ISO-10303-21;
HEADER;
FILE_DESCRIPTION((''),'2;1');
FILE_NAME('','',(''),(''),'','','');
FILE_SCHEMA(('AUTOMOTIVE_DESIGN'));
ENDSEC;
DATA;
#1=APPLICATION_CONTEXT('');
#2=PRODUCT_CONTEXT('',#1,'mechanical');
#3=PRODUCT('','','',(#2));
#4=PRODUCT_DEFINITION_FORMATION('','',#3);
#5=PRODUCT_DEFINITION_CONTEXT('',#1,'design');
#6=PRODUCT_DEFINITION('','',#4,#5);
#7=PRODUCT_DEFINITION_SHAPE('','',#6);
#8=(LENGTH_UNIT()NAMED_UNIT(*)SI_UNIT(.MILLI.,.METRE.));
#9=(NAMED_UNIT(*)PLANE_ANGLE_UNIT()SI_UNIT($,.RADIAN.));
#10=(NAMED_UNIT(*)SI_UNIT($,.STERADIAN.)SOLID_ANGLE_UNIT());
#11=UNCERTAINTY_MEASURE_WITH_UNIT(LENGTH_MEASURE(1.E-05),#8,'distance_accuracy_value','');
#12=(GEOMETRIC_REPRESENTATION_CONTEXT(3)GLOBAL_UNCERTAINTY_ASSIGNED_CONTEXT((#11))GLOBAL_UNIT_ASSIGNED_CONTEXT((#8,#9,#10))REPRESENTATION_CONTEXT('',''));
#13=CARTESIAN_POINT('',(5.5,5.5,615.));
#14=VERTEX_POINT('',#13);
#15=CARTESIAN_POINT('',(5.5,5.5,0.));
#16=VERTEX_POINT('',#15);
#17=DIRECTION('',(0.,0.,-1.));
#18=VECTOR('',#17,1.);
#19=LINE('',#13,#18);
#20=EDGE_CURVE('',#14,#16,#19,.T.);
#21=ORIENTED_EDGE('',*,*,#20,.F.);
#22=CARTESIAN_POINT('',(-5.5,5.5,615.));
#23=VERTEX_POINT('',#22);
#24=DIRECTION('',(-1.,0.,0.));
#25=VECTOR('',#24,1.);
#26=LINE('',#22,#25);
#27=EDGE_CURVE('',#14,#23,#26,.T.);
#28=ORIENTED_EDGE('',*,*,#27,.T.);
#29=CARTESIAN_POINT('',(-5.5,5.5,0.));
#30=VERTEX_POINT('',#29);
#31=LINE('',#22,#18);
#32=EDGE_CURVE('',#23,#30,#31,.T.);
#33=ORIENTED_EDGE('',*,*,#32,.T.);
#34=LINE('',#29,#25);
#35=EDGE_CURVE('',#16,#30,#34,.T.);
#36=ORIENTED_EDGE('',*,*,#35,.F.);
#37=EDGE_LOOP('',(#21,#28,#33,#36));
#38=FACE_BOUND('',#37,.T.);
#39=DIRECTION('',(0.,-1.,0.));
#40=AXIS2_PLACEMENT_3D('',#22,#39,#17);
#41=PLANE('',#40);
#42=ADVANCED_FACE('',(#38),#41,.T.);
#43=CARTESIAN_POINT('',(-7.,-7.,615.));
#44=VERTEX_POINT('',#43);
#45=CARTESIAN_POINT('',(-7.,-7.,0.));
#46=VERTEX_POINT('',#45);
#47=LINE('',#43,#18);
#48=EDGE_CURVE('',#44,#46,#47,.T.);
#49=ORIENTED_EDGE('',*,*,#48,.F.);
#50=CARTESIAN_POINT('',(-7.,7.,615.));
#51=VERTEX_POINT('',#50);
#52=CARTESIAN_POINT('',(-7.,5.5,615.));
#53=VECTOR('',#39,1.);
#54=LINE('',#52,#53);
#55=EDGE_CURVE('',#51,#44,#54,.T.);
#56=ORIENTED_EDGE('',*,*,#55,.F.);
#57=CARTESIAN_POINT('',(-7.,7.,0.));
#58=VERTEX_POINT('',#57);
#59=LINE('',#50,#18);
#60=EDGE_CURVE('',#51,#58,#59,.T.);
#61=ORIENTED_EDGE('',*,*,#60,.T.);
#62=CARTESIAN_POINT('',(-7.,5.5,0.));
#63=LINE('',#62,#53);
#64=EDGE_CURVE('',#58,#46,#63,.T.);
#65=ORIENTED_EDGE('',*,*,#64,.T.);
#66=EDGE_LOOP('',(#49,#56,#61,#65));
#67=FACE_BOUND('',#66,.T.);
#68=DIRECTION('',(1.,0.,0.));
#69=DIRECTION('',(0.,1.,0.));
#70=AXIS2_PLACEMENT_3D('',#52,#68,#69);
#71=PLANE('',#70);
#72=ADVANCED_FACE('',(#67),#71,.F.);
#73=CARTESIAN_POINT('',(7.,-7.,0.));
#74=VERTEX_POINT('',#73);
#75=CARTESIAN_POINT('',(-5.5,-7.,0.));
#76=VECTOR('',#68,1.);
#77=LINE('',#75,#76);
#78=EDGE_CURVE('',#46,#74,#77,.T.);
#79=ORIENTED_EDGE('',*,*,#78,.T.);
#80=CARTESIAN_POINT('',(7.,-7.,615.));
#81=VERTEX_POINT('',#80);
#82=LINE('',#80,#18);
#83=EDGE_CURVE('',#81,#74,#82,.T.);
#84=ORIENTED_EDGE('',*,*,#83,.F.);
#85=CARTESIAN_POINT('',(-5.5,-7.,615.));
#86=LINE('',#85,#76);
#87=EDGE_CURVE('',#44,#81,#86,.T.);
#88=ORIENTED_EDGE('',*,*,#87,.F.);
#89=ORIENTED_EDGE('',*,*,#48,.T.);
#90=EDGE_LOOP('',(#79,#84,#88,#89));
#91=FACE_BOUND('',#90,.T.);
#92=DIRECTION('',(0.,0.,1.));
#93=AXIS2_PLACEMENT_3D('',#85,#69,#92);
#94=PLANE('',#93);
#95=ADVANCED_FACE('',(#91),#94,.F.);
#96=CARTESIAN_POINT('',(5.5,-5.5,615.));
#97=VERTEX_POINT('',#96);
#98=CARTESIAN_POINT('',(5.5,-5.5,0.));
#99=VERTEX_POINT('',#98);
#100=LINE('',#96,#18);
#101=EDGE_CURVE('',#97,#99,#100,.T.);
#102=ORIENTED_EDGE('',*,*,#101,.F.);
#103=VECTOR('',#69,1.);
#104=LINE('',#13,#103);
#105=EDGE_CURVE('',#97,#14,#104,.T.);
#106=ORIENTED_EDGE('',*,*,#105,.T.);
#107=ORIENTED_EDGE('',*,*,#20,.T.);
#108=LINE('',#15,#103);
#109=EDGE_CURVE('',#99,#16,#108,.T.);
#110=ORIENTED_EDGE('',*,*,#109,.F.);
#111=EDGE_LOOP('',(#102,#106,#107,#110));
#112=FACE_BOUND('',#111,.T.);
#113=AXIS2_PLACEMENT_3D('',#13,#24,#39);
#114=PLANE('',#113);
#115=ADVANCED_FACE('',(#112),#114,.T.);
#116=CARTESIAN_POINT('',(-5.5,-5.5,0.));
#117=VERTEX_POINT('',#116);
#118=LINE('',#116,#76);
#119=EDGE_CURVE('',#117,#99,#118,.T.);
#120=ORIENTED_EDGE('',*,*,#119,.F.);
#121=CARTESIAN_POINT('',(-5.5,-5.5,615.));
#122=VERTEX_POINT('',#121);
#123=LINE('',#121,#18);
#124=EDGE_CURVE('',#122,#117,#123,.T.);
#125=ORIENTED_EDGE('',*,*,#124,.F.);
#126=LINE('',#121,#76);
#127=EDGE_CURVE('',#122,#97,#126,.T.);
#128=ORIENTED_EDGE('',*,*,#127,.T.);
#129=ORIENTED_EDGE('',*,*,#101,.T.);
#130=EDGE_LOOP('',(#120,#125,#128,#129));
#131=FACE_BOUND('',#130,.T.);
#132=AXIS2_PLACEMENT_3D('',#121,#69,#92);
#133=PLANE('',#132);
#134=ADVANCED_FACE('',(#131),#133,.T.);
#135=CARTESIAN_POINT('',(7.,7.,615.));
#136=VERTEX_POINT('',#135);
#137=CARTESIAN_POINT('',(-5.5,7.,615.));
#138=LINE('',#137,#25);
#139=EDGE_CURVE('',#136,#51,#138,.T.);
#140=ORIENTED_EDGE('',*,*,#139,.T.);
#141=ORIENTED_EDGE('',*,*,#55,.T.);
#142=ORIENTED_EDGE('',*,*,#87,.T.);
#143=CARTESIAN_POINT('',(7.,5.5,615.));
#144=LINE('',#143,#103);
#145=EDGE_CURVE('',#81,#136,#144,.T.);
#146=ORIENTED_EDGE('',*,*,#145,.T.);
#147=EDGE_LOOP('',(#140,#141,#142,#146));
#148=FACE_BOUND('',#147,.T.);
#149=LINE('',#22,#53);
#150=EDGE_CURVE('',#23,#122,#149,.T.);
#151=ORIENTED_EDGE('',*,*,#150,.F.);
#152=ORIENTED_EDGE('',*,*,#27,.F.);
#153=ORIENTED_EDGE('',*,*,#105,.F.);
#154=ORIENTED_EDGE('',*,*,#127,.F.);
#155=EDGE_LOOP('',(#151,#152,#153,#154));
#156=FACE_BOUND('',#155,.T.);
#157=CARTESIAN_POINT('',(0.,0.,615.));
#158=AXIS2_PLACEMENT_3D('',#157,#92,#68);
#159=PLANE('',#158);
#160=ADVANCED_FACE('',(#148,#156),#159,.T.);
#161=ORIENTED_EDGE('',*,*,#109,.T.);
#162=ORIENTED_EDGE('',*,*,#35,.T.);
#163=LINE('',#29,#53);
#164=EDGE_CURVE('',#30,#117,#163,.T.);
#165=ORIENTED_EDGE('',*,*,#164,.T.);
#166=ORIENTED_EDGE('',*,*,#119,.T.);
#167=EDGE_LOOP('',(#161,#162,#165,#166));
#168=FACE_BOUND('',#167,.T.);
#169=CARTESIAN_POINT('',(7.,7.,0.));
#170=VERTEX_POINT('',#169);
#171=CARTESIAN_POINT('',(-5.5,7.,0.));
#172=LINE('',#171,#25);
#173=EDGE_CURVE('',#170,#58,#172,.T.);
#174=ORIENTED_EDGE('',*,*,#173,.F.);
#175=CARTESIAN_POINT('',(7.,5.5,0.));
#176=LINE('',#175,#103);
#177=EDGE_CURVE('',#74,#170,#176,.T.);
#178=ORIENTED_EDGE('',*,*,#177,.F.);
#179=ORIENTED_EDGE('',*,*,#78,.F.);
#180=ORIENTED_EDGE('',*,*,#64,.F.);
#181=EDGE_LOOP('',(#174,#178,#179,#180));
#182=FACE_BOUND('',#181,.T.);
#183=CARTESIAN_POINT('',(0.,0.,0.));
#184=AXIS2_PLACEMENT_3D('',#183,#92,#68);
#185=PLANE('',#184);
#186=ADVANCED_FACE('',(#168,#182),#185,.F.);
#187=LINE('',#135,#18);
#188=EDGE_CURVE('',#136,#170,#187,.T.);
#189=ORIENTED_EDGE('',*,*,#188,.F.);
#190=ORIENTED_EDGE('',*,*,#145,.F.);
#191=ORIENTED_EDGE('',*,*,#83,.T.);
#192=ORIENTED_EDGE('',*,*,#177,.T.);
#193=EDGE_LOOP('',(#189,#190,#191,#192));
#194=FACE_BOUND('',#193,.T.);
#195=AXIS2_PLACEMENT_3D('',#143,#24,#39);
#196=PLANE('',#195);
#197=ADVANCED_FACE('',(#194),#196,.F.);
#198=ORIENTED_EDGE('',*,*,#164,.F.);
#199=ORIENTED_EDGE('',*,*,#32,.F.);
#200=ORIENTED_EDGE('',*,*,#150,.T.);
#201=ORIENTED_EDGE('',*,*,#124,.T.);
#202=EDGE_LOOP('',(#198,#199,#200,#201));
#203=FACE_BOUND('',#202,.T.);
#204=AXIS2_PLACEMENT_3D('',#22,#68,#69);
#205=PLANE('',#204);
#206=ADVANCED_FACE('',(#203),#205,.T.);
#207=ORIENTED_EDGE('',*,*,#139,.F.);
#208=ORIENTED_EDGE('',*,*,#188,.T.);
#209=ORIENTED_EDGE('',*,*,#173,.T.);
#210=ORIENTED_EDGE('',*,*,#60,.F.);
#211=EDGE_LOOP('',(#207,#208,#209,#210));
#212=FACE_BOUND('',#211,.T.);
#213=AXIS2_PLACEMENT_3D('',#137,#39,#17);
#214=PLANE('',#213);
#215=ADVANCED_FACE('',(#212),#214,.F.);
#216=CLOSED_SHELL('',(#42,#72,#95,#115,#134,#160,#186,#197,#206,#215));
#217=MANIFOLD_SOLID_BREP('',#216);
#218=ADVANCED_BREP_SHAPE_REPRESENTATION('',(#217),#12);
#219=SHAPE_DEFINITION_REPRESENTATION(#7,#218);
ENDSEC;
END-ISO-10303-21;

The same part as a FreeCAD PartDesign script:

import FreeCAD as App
import Part
import Sketcher
from FreeCAD import Vector
Q = App.Units.Quantity

doc = App.newDocument("Part")
body = doc.addObject("PartDesign::Body", "Body")

# Sketch on XY plane
sketch1 = body.newObject("Sketcher::SketchObject", "Sketch")
sketch1.AttachmentSupport = (doc.getObject("XY_Plane"), [""])
sketch1.MapMode = "FlatFace"
sketch1.addGeometry([
    Part.LineSegment(Vector(-7, 7, 0), Vector(-7, -7, 0)),  # 0
    Part.LineSegment(Vector(-7, -7, 0), Vector(7, -7, 0)),  # 1
    Part.LineSegment(Vector(7, -7, 0), Vector(7, 7, 0)),  # 2
    Part.LineSegment(Vector(7, 7, 0), Vector(-7, 7, 0)),  # 3
    Part.LineSegment(Vector(5.5, -5.5, 0), Vector(-5.5, -5.5, 0)),  # 4
    Part.LineSegment(Vector(-5.5, -5.5, 0), Vector(-5.5, 5.5, 0)),  # 5
    Part.LineSegment(Vector(-5.5, 5.5, 0), Vector(5.5, 5.5, 0)),  # 6
    Part.LineSegment(Vector(5.5, 5.5, 0), Vector(5.5, -5.5, 0)),  # 7
], False)
sketch1.addConstraint([
    Sketcher.Constraint("Coincident", 0, 2, 1, 1),
    Sketcher.Constraint("Coincident", 1, 2, 2, 1),
    Sketcher.Constraint("Coincident", 2, 2, 3, 1),
    Sketcher.Constraint("Coincident", 3, 2, 0, 1),
    Sketcher.Constraint("Coincident", 4, 2, 5, 1),
    Sketcher.Constraint("Coincident", 5, 2, 6, 1),
    Sketcher.Constraint("Coincident", 6, 2, 7, 1),
    Sketcher.Constraint("Coincident", 7, 2, 4, 1),
    Sketcher.Constraint("Vertical", 0),
    Sketcher.Constraint("Horizontal", 1),
    Sketcher.Constraint("Vertical", 2),
    Sketcher.Constraint("Horizontal", 3),
    Sketcher.Constraint("Horizontal", 4),
    Sketcher.Constraint("Vertical", 5),
    Sketcher.Constraint("Horizontal", 6),
    Sketcher.Constraint("Vertical", 7),
    Sketcher.Constraint("Symmetric", 0, 2, 2, 2, -1, 1),
    Sketcher.Constraint("Symmetric", 4, 2, 6, 2, -1, 1),
    Sketcher.Constraint("Equal", 3, 0),
    Sketcher.Constraint("Equal", 6, 5),
    Sketcher.Constraint("DistanceX", 1, 1, 1, 2, Q("14 mm")),
    Sketcher.Constraint("DistanceX", 4, 2, 4, 1, Q("11 mm")),
])
pad1 = body.newObject("PartDesign::Pad", "Pad")
pad1.Profile = sketch1
pad1.Length = 615

doc.recompute()
